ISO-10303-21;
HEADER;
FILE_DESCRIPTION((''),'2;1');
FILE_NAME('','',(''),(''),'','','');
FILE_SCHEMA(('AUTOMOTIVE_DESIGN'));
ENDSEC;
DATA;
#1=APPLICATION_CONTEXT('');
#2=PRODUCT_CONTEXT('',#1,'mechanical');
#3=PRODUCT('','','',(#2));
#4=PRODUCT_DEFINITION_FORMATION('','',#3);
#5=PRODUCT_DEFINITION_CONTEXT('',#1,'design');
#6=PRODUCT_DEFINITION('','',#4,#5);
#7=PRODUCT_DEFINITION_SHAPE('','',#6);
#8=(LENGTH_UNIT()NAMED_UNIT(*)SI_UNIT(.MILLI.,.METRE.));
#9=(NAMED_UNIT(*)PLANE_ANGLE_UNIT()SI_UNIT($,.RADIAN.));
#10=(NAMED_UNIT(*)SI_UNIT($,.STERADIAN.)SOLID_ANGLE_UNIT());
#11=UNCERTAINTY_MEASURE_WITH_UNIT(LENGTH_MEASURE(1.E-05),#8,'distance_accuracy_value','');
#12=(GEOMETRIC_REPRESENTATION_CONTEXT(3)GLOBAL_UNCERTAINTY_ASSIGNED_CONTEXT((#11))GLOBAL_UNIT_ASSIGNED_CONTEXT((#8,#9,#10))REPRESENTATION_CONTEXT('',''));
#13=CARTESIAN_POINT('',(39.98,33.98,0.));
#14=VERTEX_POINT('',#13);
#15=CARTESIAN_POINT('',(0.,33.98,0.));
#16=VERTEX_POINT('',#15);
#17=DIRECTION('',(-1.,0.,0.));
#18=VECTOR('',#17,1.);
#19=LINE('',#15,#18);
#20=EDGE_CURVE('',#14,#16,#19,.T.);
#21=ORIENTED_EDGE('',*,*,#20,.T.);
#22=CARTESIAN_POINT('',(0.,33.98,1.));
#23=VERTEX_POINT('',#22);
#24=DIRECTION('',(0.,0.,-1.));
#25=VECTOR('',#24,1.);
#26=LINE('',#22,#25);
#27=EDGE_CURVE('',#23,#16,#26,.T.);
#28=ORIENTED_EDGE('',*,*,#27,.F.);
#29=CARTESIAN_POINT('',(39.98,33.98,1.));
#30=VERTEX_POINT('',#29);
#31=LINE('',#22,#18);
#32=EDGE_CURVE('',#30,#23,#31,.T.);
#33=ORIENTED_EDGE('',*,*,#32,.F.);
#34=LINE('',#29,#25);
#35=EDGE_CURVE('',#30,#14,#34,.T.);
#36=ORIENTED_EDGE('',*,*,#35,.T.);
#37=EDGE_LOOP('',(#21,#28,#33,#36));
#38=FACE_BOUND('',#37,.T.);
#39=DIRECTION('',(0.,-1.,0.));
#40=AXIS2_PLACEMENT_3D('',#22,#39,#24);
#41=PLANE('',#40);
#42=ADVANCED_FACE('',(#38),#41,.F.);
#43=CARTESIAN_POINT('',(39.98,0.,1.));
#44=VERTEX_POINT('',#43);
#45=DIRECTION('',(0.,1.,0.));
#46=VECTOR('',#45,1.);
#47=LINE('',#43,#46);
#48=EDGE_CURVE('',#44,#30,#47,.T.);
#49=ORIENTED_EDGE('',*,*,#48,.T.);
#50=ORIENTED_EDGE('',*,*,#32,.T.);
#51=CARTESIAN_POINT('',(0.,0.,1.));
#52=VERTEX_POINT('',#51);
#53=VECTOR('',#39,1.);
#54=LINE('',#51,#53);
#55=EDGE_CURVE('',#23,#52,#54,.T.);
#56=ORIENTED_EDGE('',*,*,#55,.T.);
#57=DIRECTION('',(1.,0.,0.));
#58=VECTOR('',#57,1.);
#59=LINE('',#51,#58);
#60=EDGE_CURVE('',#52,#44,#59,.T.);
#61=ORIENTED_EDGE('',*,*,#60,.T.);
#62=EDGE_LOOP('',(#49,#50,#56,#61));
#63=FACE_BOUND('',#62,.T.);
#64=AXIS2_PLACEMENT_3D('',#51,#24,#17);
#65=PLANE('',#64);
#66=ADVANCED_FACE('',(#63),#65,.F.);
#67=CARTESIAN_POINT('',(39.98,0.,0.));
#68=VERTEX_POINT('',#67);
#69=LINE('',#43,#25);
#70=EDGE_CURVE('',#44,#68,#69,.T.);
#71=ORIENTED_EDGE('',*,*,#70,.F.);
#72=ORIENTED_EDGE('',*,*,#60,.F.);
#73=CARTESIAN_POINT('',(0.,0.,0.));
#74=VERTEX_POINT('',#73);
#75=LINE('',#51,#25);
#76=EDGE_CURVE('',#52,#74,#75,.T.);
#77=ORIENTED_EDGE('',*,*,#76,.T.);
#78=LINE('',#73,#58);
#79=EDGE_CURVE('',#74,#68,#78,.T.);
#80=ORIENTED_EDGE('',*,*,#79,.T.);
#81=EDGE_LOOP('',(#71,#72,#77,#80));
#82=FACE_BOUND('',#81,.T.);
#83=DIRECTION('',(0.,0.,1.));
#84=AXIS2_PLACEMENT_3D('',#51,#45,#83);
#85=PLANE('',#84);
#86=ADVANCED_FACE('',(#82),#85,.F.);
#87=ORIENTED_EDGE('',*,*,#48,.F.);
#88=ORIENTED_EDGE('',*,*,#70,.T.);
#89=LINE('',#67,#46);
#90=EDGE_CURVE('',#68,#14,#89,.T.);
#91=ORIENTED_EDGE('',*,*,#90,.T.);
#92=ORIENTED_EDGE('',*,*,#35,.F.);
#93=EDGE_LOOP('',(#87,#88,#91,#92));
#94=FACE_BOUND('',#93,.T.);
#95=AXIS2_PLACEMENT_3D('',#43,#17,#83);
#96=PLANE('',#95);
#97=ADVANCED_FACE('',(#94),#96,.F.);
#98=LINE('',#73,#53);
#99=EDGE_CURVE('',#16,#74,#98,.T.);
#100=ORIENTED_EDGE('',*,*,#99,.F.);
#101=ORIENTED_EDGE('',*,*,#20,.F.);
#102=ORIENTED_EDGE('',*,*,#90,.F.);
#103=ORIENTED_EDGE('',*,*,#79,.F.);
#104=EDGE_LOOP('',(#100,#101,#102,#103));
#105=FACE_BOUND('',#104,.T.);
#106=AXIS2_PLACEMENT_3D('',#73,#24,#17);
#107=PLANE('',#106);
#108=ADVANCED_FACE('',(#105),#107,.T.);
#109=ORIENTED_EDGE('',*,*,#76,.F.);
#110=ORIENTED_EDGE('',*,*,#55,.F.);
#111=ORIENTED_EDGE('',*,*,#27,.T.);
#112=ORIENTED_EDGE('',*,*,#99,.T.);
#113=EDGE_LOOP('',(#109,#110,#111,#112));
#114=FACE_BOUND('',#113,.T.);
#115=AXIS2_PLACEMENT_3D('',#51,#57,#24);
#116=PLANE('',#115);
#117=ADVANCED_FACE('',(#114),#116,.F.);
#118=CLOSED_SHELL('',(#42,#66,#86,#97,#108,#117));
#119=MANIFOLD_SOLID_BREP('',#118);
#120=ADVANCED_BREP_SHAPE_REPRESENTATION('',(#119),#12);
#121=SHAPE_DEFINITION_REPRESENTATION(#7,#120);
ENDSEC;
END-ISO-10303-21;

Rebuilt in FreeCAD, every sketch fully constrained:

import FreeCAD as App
import Part
import Sketcher

V = App.Vector

doc = App.newDocument("Part")
body = doc.addObject("PartDesign::Body", "Body")

# Sketch on XY plane
sketch1 = body.newObject("Sketcher::SketchObject", "Sketch")
sketch1.AttachmentSupport = (doc.getObject("XY_Plane"), [""])
sketch1.MapMode = "FlatFace"
sketch1.addGeometry([
    Part.LineSegment(V(0, 34, 0), V(0, 0, 0)),
    Part.LineSegment(V(0, 0, 0), V(40, 0, 0)),
    Part.LineSegment(V(40, 0, 0), V(40, 34, 0)),
    Part.LineSegment(V(40, 34, 0), V(0, 34, 0)),
], False)
sketch1.addConstraint([
    Sketcher.Constraint("Coincident", 0, 2, 1, 1),
    Sketcher.Constraint("Coincident", 1, 2, 2, 1),
    Sketcher.Constraint("Coincident", 2, 2, 3, 1),
    Sketcher.Constraint("Coincident", 3, 2, 0, 1),
    Sketcher.Constraint("Vertical", 0),
    Sketcher.Constraint("Horizontal", 1),
    Sketcher.Constraint("Vertical", 2),
    Sketcher.Constraint("Horizontal", 3),
    Sketcher.Constraint("Coincident", 0, 2, -1, 1),
    Sketcher.Constraint("DistanceX", 1, 1, 1, 2, 39.98),
    Sketcher.Constraint("DistanceY", 0, 2, 0, 1, 33.98),
])
pad1 = body.newObject("PartDesign::Pad", "Pad")
pad1.Profile = sketch1
pad1.Length = 1

doc.recompute()
